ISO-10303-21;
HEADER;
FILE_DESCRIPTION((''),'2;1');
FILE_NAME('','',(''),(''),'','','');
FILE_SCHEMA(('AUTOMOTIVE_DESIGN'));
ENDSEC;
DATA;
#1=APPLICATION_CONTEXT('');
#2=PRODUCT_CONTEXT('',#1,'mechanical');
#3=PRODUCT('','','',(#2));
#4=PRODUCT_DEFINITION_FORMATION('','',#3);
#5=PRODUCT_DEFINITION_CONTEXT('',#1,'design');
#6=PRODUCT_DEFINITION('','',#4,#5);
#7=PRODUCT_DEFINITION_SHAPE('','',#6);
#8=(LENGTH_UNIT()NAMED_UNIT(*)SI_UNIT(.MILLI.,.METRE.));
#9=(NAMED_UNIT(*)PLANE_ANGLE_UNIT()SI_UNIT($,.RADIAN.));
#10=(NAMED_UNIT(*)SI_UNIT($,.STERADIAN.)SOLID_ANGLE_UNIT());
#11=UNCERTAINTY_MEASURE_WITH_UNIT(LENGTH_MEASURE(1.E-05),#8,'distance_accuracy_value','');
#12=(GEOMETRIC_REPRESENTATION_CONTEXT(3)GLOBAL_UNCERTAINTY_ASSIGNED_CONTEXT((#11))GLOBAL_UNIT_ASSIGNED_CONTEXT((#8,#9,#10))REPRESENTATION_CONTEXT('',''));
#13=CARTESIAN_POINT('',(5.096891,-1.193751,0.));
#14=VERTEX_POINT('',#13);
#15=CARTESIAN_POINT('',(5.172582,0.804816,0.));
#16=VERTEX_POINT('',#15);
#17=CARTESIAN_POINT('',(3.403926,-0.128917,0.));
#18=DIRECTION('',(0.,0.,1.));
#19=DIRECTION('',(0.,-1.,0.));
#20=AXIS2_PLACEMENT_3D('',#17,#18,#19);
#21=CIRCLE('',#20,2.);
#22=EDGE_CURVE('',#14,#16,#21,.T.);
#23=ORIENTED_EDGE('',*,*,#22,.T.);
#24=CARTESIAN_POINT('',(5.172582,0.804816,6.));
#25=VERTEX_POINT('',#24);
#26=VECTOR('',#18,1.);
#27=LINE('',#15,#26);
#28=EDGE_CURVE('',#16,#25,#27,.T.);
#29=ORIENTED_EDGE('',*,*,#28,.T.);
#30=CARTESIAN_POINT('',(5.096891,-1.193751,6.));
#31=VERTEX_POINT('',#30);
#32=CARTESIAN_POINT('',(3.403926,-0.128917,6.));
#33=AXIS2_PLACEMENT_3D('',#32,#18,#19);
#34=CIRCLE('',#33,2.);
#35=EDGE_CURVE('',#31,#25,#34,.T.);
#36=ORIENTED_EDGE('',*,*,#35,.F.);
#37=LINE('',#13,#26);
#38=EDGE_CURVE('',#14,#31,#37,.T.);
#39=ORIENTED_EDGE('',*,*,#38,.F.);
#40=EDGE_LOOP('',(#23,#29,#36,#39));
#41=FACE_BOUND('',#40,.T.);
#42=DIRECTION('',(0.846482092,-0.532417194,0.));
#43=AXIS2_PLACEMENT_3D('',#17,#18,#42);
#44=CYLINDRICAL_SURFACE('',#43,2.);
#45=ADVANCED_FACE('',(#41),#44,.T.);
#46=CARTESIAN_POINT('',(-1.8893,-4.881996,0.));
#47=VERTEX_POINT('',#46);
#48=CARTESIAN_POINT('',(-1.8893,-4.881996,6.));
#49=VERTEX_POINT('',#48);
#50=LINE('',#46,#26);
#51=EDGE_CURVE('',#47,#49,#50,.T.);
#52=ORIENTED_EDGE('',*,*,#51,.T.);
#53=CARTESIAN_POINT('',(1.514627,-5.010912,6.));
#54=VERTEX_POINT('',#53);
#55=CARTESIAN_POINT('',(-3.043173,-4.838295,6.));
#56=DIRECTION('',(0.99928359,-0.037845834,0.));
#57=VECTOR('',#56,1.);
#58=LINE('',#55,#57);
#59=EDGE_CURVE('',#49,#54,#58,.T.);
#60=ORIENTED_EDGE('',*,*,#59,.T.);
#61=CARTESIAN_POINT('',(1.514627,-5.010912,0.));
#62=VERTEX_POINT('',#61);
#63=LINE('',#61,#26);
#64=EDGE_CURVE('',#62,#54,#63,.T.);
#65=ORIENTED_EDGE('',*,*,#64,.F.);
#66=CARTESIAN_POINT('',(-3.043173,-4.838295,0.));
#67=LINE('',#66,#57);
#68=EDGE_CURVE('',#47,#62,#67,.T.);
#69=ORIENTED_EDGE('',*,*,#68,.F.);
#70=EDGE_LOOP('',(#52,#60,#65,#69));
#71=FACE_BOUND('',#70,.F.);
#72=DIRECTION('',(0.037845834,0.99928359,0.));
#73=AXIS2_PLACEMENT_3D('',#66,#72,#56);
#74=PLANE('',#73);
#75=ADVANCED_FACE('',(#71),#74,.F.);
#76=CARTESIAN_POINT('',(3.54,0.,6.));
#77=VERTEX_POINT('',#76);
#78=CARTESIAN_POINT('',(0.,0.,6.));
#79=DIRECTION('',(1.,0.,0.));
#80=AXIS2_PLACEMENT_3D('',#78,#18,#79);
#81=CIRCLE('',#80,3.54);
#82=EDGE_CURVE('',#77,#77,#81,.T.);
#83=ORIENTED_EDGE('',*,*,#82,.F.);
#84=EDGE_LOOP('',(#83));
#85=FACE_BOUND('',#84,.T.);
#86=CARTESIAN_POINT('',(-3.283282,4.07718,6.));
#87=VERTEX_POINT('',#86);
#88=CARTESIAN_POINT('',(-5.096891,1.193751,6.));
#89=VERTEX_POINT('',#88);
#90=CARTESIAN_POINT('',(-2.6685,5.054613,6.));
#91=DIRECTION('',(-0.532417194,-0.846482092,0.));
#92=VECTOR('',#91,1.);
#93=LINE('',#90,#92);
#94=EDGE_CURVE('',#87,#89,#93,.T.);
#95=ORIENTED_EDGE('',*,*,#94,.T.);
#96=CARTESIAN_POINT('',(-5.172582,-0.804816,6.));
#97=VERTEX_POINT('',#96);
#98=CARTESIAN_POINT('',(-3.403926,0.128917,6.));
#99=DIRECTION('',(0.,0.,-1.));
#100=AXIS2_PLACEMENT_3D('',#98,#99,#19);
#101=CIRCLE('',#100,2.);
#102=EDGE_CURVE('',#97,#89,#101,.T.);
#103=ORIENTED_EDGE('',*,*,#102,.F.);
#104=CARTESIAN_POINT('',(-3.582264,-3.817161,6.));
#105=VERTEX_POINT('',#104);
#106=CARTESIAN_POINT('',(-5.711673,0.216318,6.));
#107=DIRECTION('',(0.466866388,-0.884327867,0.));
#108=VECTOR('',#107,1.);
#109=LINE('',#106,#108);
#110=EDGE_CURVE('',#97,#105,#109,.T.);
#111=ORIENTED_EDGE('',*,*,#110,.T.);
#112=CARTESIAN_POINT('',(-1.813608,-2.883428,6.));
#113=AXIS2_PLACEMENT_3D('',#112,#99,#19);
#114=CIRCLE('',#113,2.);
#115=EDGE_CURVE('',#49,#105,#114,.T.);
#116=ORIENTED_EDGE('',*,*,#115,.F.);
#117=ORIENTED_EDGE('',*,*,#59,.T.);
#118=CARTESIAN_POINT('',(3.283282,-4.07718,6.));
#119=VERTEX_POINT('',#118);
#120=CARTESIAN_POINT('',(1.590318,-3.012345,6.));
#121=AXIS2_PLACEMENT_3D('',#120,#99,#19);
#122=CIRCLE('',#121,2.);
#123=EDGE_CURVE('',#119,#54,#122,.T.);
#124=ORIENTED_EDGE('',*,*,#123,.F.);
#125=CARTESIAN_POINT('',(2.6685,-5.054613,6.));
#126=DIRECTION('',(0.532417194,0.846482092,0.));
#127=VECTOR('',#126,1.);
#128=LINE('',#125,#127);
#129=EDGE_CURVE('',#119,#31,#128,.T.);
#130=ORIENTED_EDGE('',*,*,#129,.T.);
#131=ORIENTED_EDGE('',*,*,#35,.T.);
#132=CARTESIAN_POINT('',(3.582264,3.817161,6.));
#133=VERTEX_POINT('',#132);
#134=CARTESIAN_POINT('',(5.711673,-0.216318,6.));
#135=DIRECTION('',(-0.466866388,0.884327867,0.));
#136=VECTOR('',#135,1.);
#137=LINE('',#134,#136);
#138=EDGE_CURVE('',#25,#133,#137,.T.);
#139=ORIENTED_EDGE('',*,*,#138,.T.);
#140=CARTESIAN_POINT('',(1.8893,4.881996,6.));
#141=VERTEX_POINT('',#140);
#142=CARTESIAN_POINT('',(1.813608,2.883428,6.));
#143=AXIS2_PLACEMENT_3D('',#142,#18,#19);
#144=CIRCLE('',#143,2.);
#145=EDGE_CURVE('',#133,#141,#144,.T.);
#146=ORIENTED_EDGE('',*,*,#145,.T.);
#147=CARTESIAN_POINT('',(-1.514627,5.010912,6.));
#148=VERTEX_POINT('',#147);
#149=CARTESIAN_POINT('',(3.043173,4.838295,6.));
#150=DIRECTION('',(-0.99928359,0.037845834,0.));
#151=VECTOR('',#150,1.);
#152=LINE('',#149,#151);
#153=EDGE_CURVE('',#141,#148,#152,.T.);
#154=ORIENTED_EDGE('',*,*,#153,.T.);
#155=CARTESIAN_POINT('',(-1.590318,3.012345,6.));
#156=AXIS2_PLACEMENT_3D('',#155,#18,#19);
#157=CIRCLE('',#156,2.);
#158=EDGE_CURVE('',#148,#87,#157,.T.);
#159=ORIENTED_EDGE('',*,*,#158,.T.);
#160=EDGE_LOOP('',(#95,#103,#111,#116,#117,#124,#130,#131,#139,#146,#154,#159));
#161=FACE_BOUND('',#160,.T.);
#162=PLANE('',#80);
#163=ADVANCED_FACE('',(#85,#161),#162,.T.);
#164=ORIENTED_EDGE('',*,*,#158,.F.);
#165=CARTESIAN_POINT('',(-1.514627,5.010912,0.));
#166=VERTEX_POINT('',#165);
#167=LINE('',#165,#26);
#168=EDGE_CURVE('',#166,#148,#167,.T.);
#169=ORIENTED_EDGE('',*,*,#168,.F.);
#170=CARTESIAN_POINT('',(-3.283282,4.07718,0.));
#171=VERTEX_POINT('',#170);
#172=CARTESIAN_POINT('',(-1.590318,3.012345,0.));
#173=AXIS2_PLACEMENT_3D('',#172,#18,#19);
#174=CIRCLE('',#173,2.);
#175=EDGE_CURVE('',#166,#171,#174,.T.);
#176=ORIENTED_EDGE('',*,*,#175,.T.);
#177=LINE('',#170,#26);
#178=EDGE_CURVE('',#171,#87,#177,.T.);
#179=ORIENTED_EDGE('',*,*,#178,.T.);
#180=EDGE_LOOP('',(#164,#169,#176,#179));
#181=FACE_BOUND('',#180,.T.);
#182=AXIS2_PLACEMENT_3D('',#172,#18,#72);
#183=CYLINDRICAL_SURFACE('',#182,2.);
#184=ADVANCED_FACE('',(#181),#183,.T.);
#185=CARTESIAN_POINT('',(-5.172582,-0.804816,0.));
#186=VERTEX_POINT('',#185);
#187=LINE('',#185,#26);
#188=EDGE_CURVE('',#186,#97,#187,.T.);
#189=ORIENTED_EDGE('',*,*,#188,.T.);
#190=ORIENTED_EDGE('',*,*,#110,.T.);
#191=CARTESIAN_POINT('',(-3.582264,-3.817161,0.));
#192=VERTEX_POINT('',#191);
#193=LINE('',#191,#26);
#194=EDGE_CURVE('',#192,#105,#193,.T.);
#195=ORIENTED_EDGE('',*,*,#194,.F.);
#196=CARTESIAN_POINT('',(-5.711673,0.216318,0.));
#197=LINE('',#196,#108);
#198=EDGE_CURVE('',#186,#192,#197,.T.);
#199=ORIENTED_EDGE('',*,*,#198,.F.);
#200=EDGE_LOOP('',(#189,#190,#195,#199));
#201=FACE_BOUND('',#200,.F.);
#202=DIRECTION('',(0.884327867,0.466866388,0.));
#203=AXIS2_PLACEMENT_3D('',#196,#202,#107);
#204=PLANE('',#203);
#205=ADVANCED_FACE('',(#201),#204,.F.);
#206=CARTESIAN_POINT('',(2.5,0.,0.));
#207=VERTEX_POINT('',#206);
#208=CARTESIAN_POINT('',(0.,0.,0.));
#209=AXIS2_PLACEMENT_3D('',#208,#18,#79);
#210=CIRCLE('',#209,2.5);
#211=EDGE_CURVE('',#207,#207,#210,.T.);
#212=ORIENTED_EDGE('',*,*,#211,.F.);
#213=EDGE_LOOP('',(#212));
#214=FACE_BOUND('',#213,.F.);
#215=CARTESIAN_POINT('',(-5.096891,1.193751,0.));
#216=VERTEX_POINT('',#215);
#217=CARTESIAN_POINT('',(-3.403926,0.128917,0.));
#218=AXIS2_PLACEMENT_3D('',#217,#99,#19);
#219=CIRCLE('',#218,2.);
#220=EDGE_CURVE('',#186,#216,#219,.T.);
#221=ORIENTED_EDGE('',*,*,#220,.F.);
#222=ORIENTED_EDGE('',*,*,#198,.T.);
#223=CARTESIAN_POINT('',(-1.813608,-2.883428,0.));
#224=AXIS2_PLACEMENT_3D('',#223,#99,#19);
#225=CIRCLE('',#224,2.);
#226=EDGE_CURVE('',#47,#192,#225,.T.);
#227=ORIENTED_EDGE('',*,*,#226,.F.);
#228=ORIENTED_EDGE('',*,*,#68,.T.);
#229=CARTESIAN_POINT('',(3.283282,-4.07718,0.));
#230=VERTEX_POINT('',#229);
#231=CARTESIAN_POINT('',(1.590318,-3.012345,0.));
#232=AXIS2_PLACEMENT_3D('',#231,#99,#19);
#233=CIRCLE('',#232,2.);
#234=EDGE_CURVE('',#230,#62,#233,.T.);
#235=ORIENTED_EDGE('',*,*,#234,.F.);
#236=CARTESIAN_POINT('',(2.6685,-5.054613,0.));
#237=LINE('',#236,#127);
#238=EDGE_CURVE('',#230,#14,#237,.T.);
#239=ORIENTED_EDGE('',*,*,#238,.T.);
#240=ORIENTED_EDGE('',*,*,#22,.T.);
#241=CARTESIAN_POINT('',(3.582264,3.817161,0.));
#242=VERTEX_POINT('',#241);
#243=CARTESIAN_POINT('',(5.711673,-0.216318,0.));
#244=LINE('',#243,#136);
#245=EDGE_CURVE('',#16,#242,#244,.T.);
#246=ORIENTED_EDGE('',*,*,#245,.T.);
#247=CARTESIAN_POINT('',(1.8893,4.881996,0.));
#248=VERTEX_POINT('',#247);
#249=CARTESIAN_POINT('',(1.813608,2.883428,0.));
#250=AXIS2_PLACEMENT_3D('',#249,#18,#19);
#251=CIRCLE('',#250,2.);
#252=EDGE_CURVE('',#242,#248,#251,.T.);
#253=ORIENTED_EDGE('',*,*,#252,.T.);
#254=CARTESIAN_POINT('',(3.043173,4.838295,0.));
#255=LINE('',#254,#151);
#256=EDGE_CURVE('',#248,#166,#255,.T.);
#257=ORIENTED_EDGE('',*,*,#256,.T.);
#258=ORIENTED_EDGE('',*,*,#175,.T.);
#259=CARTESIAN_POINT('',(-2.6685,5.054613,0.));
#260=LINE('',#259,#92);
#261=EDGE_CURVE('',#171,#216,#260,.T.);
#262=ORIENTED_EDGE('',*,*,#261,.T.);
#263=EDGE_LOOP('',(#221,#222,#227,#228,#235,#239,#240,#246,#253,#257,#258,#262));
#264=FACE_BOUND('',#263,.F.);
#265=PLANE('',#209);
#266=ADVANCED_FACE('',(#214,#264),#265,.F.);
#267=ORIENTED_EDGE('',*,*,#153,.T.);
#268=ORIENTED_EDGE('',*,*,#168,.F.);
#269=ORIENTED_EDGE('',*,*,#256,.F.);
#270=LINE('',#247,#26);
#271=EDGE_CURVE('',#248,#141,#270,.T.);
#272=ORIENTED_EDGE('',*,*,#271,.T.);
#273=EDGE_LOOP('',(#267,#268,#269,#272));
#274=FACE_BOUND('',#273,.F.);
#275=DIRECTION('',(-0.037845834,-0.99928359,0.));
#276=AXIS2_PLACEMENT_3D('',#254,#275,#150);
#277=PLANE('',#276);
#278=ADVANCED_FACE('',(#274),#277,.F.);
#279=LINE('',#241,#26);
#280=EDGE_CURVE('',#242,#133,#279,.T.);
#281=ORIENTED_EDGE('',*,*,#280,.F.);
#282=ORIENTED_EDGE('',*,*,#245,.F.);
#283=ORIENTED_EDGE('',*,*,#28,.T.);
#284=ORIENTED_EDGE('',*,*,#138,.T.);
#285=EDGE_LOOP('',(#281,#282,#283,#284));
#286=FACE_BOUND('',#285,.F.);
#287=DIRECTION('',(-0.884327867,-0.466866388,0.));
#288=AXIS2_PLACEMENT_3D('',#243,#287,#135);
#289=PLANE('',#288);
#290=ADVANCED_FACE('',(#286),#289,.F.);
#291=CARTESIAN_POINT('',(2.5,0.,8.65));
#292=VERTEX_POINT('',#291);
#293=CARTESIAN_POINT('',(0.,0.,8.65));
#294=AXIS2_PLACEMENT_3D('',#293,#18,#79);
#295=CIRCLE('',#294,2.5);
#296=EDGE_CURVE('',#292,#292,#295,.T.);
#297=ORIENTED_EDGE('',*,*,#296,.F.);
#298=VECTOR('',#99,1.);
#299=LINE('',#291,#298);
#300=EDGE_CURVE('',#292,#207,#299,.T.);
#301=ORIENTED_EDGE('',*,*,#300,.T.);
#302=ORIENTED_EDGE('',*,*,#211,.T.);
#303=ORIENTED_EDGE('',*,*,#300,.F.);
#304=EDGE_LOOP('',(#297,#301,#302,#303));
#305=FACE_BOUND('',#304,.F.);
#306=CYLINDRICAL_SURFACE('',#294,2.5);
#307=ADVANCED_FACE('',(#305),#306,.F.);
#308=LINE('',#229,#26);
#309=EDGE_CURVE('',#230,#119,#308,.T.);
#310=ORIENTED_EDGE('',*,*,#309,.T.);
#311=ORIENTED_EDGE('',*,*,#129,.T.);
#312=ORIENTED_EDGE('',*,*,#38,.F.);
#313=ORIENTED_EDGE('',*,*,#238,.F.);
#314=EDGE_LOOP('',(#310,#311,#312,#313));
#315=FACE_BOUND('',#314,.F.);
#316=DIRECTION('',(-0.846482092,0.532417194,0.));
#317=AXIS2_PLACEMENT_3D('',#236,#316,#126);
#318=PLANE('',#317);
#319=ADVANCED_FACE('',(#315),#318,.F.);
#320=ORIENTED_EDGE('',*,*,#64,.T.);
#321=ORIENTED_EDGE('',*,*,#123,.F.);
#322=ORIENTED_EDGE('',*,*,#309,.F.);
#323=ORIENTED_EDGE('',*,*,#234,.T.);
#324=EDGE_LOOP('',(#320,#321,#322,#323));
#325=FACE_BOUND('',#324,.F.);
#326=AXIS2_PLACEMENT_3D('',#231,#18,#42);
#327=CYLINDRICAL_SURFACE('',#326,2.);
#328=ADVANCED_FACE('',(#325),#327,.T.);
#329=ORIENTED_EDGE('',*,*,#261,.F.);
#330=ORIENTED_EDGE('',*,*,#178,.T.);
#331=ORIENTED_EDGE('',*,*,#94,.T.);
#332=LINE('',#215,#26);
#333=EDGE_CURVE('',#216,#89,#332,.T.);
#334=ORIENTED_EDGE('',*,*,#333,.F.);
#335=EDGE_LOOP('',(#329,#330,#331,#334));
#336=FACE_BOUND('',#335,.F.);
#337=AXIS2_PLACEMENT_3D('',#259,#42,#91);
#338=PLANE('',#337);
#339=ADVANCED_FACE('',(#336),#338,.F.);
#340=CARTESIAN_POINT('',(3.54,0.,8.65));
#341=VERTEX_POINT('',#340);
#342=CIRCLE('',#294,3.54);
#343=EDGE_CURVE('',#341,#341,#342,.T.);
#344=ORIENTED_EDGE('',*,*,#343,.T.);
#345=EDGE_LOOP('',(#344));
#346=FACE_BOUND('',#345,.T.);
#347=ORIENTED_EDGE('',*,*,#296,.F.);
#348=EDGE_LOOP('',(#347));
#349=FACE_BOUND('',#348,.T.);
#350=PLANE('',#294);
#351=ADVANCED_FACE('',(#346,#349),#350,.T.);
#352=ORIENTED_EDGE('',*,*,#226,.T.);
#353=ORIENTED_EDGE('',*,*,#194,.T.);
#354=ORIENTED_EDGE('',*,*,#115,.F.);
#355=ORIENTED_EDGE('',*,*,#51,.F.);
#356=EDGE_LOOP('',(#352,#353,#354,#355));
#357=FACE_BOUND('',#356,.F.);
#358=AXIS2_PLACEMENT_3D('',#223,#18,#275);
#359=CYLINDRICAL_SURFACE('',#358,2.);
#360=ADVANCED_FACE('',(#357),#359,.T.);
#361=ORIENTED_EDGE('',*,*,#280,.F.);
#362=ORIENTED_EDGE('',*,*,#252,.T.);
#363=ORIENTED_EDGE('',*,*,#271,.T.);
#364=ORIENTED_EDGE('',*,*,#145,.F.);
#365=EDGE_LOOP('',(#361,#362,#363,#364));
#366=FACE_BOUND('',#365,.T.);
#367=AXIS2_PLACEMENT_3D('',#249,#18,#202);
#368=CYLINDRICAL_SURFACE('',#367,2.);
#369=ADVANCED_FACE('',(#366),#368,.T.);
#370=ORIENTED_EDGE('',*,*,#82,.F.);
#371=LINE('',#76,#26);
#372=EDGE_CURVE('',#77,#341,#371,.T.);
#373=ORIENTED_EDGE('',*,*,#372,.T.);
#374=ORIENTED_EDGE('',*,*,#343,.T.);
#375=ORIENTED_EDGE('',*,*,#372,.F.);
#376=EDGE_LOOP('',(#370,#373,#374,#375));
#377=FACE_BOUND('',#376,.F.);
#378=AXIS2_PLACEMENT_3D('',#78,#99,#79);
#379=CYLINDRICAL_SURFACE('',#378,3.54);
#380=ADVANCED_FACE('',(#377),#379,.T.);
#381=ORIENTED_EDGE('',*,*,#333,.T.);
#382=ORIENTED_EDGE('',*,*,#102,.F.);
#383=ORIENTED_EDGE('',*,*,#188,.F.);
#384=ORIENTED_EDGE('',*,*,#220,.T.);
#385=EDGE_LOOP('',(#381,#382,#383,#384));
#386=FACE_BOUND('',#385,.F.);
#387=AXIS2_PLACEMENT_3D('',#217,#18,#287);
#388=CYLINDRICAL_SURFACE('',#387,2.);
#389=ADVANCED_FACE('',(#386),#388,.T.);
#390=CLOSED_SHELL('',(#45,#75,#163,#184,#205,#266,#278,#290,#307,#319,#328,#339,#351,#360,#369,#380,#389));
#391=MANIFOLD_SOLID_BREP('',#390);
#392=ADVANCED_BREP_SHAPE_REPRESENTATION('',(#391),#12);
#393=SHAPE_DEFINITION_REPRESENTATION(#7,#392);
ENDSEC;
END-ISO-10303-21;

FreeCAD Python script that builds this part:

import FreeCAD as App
import Part
import Sketcher
from FreeCAD import Vector
Q = App.Units.Quantity


def edges_at(feature, points):
    """Names of the edges that pass closest to the given points."""
    edges = feature.Shape.Edges
    near = lambda p: min(range(len(edges)), key=lambda i: edges[i].distToShape(Part.Vertex(*p))[0])
    return sorted({f"Edge{near(p) + 1}" for p in points})


def add_polygon(sketch, points):
    """Adds a closed chain of lines whose ends are joined by coincident constraints."""
    first, n = sketch.GeometryCount, len(points)
    for a, b in zip(points, points[1:] + points[:1]):
        sketch.addGeometry(Part.LineSegment(App.Vector(*a, 0), App.Vector(*b, 0)), False)
    for i in range(n):
        sketch.addConstraint(Sketcher.Constraint("Coincident", first + i, 2, first + (i + 1) % n, 1))

doc = App.newDocument("Part")
body = doc.addObject("PartDesign::Body", "Body")

# Sketch on XY plane
sketch1 = doc.addObject("Sketcher::SketchObject", "Sketch")
body.addObject(sketch1)
sketch1.AttachmentSupport = (doc.XY_Plane, [""])
sketch1.MapMode = "FlatFace"
add_polygon(sketch1, [(3, -5), (6, 0), (3, 5), (-3, 5), (-6, 0), (-3, -5)])  # lines 0-5
sketch1.addConstraint([
    Sketcher.Constraint("Symmetric", 0, 2, 3, 2, -1, 1),
    Sketcher.Constraint("Symmetric", 1, 2, 4, 2, -1, 1),
    Sketcher.Constraint("Symmetric", 2, 2, 5, 2, -1, 1),
    Sketcher.Constraint("Equal", 0, 1),
    Sketcher.Constraint("Equal", 1, 2),
    Sketcher.Constraint("DistanceX", 2, 2, 5, 2, Q("5.337 mm")),
    Sketcher.Constraint("DistanceX", 1, 2, 0, 2, Q("2.6685 mm")),
    Sketcher.Constraint("Distance", 1, Q("5.715768 mm")),
    Sketcher.Constraint("DistanceY", 1, 2, 2, 2, Q("0.216318 mm")),
])
pad1 = doc.addObject("PartDesign::Pad", "Pad")
body.addObject(pad1)
pad1.Profile = sketch1
pad1.Length = 6

# Sketch on XY plane
sketch2 = doc.addObject("Sketcher::SketchObject", "Sketch001")
body.addObject(sketch2)
sketch2.AttachmentSupport = (doc.XY_Plane, [""])
sketch2.MapMode = "FlatFace"
sketch2.AttachmentOffset = App.Placement(Vector(0, 0, 6), App.Rotation())
sketch2.addGeometry(Part.Circle(Vector(0, 0, 0), Vector(0, 0, 1), 3.5), False)
sketch2.addConstraint([
    Sketcher.Constraint("Coincident", 0, 3, -1, 1),
    Sketcher.Constraint("Diameter", 0, Q("7.08 mm")),
])
pad2 = doc.addObject("PartDesign::Pad", "Pad001")
body.addObject(pad2)
pad2.Profile = sketch2
pad2.Length = 2.65

# Sketch on XY plane
sketch3 = doc.addObject("Sketcher::SketchObject", "Sketch002")
body.addObject(sketch3)
sketch3.AttachmentSupport = (doc.XY_Plane, [""])
sketch3.MapMode = "FlatFace"
sketch3.AttachmentOffset = App.Placement(Vector(0, 0, 8.65), App.Rotation())
sketch3.addGeometry(Part.Circle(Vector(0, 0, 0), Vector(0, 0, 1), 2.5), False)
sketch3.addConstraint([
    Sketcher.Constraint("Coincident", 0, 3, -1, 1),
    Sketcher.Constraint("Diameter", 0, Q("5 mm")),
])
pocket1 = doc.addObject("PartDesign::Pocket", "Pocket")
body.addObject(pocket1)
pocket1.Profile = sketch3
pocket1.Length = 25
doc.recompute()

fillet = doc.addObject("PartDesign::Fillet", "Fillet")
body.addObject(fillet)
fillet.Base = (pocket1, edges_at(pocket1, [
    (2.668, -5.055, 3),
    (5.712, -0.216, 3),
    (-3.043, -4.838, 3),
    (-5.712, 0.216, 3),
    (-2.668, 5.055, 3),
    (3.043, 4.838, 3),
]))
fillet.Radius = 2

doc.recompute()
